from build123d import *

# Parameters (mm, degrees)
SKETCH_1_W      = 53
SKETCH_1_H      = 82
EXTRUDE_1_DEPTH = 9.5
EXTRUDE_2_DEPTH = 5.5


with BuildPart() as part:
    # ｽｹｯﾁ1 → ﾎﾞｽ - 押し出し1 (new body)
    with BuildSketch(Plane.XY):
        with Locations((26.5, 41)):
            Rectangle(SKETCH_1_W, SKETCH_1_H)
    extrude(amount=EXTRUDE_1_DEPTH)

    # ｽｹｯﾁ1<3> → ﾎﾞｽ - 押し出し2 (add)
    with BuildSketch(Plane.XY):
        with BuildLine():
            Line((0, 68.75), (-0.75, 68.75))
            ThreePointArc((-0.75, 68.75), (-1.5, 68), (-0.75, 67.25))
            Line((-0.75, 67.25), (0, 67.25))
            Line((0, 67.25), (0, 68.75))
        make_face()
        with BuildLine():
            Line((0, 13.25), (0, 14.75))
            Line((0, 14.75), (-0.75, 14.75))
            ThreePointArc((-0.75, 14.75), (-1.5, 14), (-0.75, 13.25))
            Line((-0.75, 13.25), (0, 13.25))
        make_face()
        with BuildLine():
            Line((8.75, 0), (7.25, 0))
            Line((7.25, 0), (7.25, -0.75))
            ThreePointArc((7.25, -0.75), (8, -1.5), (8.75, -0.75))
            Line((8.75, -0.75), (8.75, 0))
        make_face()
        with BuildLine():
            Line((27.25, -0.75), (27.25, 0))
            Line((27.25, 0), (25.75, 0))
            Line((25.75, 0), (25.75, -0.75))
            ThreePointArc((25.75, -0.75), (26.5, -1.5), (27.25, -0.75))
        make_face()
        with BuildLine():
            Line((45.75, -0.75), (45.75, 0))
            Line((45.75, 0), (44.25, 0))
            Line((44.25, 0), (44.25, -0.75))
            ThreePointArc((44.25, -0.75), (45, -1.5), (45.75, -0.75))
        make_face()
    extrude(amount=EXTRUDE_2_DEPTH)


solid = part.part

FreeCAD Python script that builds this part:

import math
import FreeCAD as App
import Part
import Sketcher

V = App.Vector
Q = App.Units.Quantity


def add_polygon(sketch, points):
    """Adds a closed chain of lines whose ends are joined by coincident constraints."""
    first, n = sketch.GeometryCount, len(points)
    for a, b in zip(points, points[1:] + points[:1]):
        sketch.addGeometry(Part.LineSegment(App.Vector(*a, 0), App.Vector(*b, 0)), False)
    for i in range(n):
        sketch.addConstraint(Sketcher.Constraint("Coincident", first + i, 2, first + (i + 1) % n, 1))

doc = App.newDocument("Part")
body = doc.addObject("PartDesign::Body", "Body")

# Sketch on XY plane
sketch1 = body.newObject("Sketcher::SketchObject", "Sketch")
sketch1.AttachmentSupport = (doc.getObject("XY_Plane"), [""])
sketch1.MapMode = "FlatFace"
add_polygon(sketch1, [(0, 82), (0, 0), (53, 0), (53, 82)])  # lines 0-3
sketch1.addConstraint([
    Sketcher.Constraint("Vertical", 0),
    Sketcher.Constraint("Horizontal", 1),
    Sketcher.Constraint("Vertical", 2),
    Sketcher.Constraint("Horizontal", 3),
    Sketcher.Constraint("Coincident", 0, 2, -1, 1),
    Sketcher.Constraint("DistanceX", 1, 1, 1, 2, Q("53 mm")),
    Sketcher.Constraint("DistanceY", 0, 2, 0, 1, Q("82 mm")),
])
pad1 = body.newObject("PartDesign::Pad", "Pad")
pad1.Profile = sketch1
pad1.Length = 9.5

# Sketch on XY plane
sketch2 = body.newObject("Sketcher::SketchObject", "Sketch001")
sketch2.AttachmentSupport = (doc.getObject("XY_Plane"), [""])
sketch2.MapMode = "FlatFace"
sketch2.addGeometry([
    Part.LineSegment(V(0, 68.8, 0), V(-0.8, 68.8, 0)),  # 0
    Part.ArcOfCircle(Part.Circle(V(-0.8, 68, 0), V(0, 0, 1), 0.8), math.radians(90), math.radians(270)),  # 1
    Part.LineSegment(V(-0.8, 67.2, 0), V(0, 67.2, 0)),  # 2
    Part.LineSegment(V(0, 67.2, 0), V(0, 68.8, 0)),  # 3
    Part.LineSegment(V(0, 13.2, 0), V(0, 14.8, 0)),  # 4
    Part.LineSegment(V(0, 14.8, 0), V(-0.8, 14.8, 0)),  # 5
    Part.ArcOfCircle(Part.Circle(V(-0.8, 14, 0), V(0, 0, 1), 0.8), math.radians(90), math.radians(270)),  # 6
    Part.LineSegment(V(-0.8, 13.2, 0), V(0, 13.2, 0)),  # 7
    Part.LineSegment(V(8.8, 0, 0), V(7.2, 0, 0)),  # 8
    Part.LineSegment(V(7.2, 0, 0), V(7.2, -0.8, 0)),  # 9
    Part.ArcOfCircle(Part.Circle(V(8, -0.8, 0), V(0, 0, 1), 0.8), math.radians(180), math.radians(360)),  # 10
    Part.LineSegment(V(8.8, -0.8, 0), V(8.8, 0, 0)),  # 11
    Part.LineSegment(V(27.2, -0.8, 0), V(27.2, 0, 0)),  # 12
    Part.LineSegment(V(27.2, 0, 0), V(25.8, 0, 0)),  # 13
    Part.LineSegment(V(25.8, 0, 0), V(25.8, -0.8, 0)),  # 14
    Part.ArcOfCircle(Part.Circle(V(26.5, -0.8, 0), V(0, 0, 1), 0.8), math.radians(180), math.radians(360)),  # 15
    Part.LineSegment(V(45.8, -0.8, 0), V(45.8, 0, 0)),  # 16
    Part.LineSegment(V(45.8, 0, 0), V(44.2, 0, 0)),  # 17
    Part.LineSegment(V(44.2, 0, 0), V(44.2, -0.8, 0)),  # 18
    Part.ArcOfCircle(Part.Circle(V(45, -0.8, 0), V(0, 0, 1), 0.8), math.radians(180), math.radians(360)),  # 19
], False)
sketch2.addConstraint([
    Sketcher.Constraint("Tangent", 0, 2, 1, 1),
    Sketcher.Constraint("Tangent", 1, 2, 2, 1),
    Sketcher.Constraint("Coincident", 2, 2, 3, 1),
    Sketcher.Constraint("Coincident", 3, 2, 0, 1),
    Sketcher.Constraint("Coincident", 4, 2, 5, 1),
    Sketcher.Constraint("Tangent", 5, 2, 6, 1),
    Sketcher.Constraint("Tangent", 6, 2, 7, 1),
    Sketcher.Constraint("Coincident", 7, 2, 4, 1),
    Sketcher.Constraint("Coincident", 8, 2, 9, 1),
    Sketcher.Constraint("Tangent", 9, 2, 10, 1),
    Sketcher.Constraint("Tangent", 10, 2, 11, 1),
    Sketcher.Constraint("Coincident", 11, 2, 8, 1),
    Sketcher.Constraint("Coincident", 12, 2, 13, 1),
    Sketcher.Constraint("Coincident", 13, 2, 14, 1),
    Sketcher.Constraint("Tangent", 14, 2, 15, 1),
    Sketcher.Constraint("Tangent", 15, 2, 12, 1),
    Sketcher.Constraint("Coincident", 16, 2, 17, 1),
    Sketcher.Constraint("Coincident", 17, 2, 18, 1),
    Sketcher.Constraint("Tangent", 18, 2, 19, 1),
    Sketcher.Constraint("Tangent", 19, 2, 16, 1),
    Sketcher.Constraint("Horizontal", 0),
    Sketcher.Constraint("Horizontal", 2),
    Sketcher.Constraint("Vertical", 3),
    Sketcher.Constraint("Vertical", 4),
    Sketcher.Constraint("Horizontal", 5),
    Sketcher.Constraint("Horizontal", 7),
    Sketcher.Constraint("Horizontal", 8),
    Sketcher.Constraint("Vertical", 9),
    Sketcher.Constraint("Vertical", 11),
    Sketcher.Constraint("Vertical", 12),
    Sketcher.Constraint("Horizontal", 13),
    Sketcher.Constraint("Vertical", 14),
    Sketcher.Constraint("Vertical", 16),
    Sketcher.Constraint("Horizontal", 17),
    Sketcher.Constraint("Vertical", 18),
    Sketcher.Constraint("Equal", 1, 6),
    Sketcher.Constraint("Equal", 6, 10),
    Sketcher.Constraint("Equal", 10, 15),
    Sketcher.Constraint("Equal", 15, 19),
    Sketcher.Constraint("PointOnObject", 2, 2, -2),
    Sketcher.Constraint("PointOnObject", 4, 2, -2),
    Sketcher.Constraint("PointOnObject", 8, 2, -1),
    Sketcher.Constraint("PointOnObject", 12, 2, -1),
    Sketcher.Constraint("PointOnObject", 16, 2, -1),
    Sketcher.Constraint("Horizontal", 10, 3, 15, 3),
    Sketcher.Constraint("Horizontal", 15, 3, 19, 3),
    Sketcher.Constraint("Vertical", 1, 3, 6, 3),
    Sketcher.Constraint("Equal", 7, 9),
    Sketcher.Constraint("Radius", 1, Q("0.75 mm")),
    Sketcher.Constraint("DistanceY", -1, 1, 1, 3, Q("68 mm")),
    Sketcher.Constraint("DistanceY", -1, 1, 6, 3, Q("14 mm")),
    Sketcher.Constraint("DistanceX", -1, 1, 10, 3, Q("8 mm")),
    Sketcher.Constraint("DistanceX", -1, 1, 19, 3, Q("45 mm")),
    Sketcher.Constraint("DistanceY", 10, 3, 1, 2, Q("68 mm")),
    Sketcher.Constraint("DistanceX", 11, 2, 13, 2, Q("17 mm")),
])
pad2 = body.newObject("PartDesign::Pad", "Pad001")
pad2.Profile = sketch2
pad2.Length = 5.5

doc.recompute()
